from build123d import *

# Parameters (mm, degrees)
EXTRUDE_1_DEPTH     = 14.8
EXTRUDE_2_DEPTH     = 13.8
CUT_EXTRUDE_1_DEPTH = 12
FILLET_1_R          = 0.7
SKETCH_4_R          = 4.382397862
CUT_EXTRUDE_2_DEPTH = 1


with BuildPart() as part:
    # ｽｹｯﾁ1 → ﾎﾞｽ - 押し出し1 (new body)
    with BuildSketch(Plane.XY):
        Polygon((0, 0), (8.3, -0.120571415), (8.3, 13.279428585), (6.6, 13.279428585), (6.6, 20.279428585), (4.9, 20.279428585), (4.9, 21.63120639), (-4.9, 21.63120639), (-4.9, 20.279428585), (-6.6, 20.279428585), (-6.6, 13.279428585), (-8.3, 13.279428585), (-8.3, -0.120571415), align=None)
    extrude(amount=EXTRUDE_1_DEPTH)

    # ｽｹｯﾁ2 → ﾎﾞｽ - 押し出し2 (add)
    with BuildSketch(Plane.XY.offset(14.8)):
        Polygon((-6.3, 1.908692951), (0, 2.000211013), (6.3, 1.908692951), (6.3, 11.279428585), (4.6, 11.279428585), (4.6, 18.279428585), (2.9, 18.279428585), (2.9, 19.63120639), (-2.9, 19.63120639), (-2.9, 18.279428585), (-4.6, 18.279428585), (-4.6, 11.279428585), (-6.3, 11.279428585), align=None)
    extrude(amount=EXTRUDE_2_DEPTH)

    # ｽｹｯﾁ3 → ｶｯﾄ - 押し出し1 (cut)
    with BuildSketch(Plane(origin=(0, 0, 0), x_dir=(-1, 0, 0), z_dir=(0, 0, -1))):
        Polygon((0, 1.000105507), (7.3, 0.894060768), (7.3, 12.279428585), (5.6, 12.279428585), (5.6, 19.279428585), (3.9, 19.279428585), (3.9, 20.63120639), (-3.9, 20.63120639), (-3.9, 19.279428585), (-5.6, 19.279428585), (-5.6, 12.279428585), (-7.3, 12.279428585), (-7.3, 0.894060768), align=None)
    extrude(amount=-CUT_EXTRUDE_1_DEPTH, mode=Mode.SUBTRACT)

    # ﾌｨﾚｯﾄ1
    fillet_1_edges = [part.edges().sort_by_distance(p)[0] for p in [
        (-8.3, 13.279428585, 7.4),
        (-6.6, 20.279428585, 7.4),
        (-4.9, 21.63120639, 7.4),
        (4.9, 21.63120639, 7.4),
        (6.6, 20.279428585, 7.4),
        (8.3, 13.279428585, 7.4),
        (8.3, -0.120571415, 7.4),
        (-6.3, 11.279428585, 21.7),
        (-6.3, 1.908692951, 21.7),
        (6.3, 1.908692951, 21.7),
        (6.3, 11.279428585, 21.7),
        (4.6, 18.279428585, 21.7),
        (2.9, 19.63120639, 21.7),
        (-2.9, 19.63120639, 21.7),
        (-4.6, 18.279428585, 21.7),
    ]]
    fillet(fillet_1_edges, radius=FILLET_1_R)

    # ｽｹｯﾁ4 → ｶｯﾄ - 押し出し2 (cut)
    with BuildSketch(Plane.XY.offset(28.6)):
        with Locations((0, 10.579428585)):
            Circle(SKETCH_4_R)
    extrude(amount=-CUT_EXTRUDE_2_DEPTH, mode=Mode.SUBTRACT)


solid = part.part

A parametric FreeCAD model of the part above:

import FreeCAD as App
import Part
import Sketcher
Q = App.Units.Quantity


def edges_at(feature, points):
    """Names of the edges that pass closest to the given points."""
    edges = feature.Shape.Edges
    near = lambda p: min(range(len(edges)), key=lambda i: edges[i].distToShape(Part.Vertex(*p))[0])
    return sorted({f"Edge{near(p) + 1}" for p in points})

doc = App.newDocument("Part")
params = doc.addObject("Spreadsheet::Sheet", "Params")
for row, (alias, value) in enumerate([
    ("sketch1_height", "7 mm"),
    ("sketch1_width", "1.7 mm"),
    ("sketch1_width2", "9.8 mm"),
    ("sketch1_height2", "13.4 mm"),
    ("pad1_length", "14.8 mm"),
    ("sketch2_height", "7 mm"),
    ("sketch2_width", "1.7 mm"),
    ("sketch2_width2", "5.8 mm"),
    ("pad2_length", "13.8 mm"),
    ("sketch3_height", "7 mm"),
    ("sketch3_width", "1.7 mm"),
    ("sketch3_width2", "7.8 mm"),
    ("pocket1_length", "12 mm"),
    ("fillet_radius", "0.7 mm"),
    ("pocket2_length", "1 mm"),
], start=1):
    params.set(f"A{row}", alias)
    params.set(f"B{row}", "=" + value)
    params.setAlias(f"B{row}", alias)

body = doc.addObject("PartDesign::Body", "Body")

# Sketch on XY plane
sketch1 = body.newObject("Sketcher::SketchObject", "Sketch")
sketch1.AttachmentSupport = (doc.getObject("XY_Plane"), [""])
sketch1.MapMode = "FlatFace"
sketch1.addGeometry([
    Part.LineSegment(App.Vector(0, 0, 0), App.Vector(8.3, -0.1, 0)),  # 0
    Part.LineSegment(App.Vector(8.3, -0.1, 0), App.Vector(8.3, 13.3, 0)),  # 1
    Part.LineSegment(App.Vector(8.3, 13.3, 0), App.Vector(6.6, 13.3, 0)),  # 2
    Part.LineSegment(App.Vector(6.6, 13.3, 0), App.Vector(6.6, 20.3, 0)),  # 3
    Part.LineSegment(App.Vector(6.6, 20.3, 0), App.Vector(4.9, 20.3, 0)),  # 4
    Part.LineSegment(App.Vector(4.9, 20.3, 0), App.Vector(4.9, 21.6, 0)),  # 5
    Part.LineSegment(App.Vector(4.9, 21.6, 0), App.Vector(-4.9, 21.6, 0)),  # 6
    Part.LineSegment(App.Vector(-4.9, 21.6, 0), App.Vector(-4.9, 20.3, 0)),  # 7
    Part.LineSegment(App.Vector(-4.9, 20.3, 0), App.Vector(-6.6, 20.3, 0)),  # 8
    Part.LineSegment(App.Vector(-6.6, 20.3, 0), App.Vector(-6.6, 13.3, 0)),  # 9
    Part.LineSegment(App.Vector(-6.6, 13.3, 0), App.Vector(-8.3, 13.3, 0)),  # 10
    Part.LineSegment(App.Vector(-8.3, 13.3, 0), App.Vector(-8.3, -0.1, 0)),  # 11
    Part.LineSegment(App.Vector(-8.3, -0.1, 0), App.Vector(0, 0, 0)),  # 12
], False)
sketch1.addConstraint([
    Sketcher.Constraint("Coincident", 0, 2, 1, 1),
    Sketcher.Constraint("Coincident", 1, 2, 2, 1),
    Sketcher.Constraint("Coincident", 2, 2, 3, 1),
    Sketcher.Constraint("Coincident", 3, 2, 4, 1),
    Sketcher.Constraint("Coincident", 4, 2, 5, 1),
    Sketcher.Constraint("Coincident", 5, 2, 6, 1),
    Sketcher.Constraint("Coincident", 6, 2, 7, 1),
    Sketcher.Constraint("Coincident", 7, 2, 8, 1),
    Sketcher.Constraint("Coincident", 8, 2, 9, 1),
    Sketcher.Constraint("Coincident", 9, 2, 10, 1),
    Sketcher.Constraint("Coincident", 10, 2, 11, 1),
    Sketcher.Constraint("Coincident", 11, 2, 12, 1),
    Sketcher.Constraint("Coincident", 12, 2, 0, 1),
    Sketcher.Constraint("Vertical", 1),
    Sketcher.Constraint("Horizontal", 2),
    Sketcher.Constraint("Vertical", 3),
    Sketcher.Constraint("Horizontal", 4),
    Sketcher.Constraint("Vertical", 5),
    Sketcher.Constraint("Horizontal", 6),
    Sketcher.Constraint("Vertical", 7),
    Sketcher.Constraint("Horizontal", 8),
    Sketcher.Constraint("Vertical", 9),
    Sketcher.Constraint("Horizontal", 10),
    Sketcher.Constraint("Vertical", 11),
    Sketcher.Constraint("Coincident", 12, 2, -1, 1),
    Sketcher.Constraint("Symmetric", 4, 2, 7, 2, -2),
    Sketcher.Constraint("Symmetric", 2, 2, 9, 2, -2),
    Sketcher.Constraint("Symmetric", 0, 2, 11, 2, -2),
    Sketcher.Constraint("Equal", 2, 4),
    Sketcher.Constraint("DistanceY", 3, 1, 3, 2, Q("7 mm")),
    Sketcher.Constraint("DistanceX", 2, 2, 2, 1, Q("1.7 mm")),
    Sketcher.Constraint("DistanceX", 6, 2, 6, 1, Q("9.8 mm")),
    Sketcher.Constraint("DistanceY", 1, 1, 1, 2, Q("13.4 mm")),
    Sketcher.Constraint("DistanceY", 5, 1, 5, 2, Q("1.351778 mm")),
    Sketcher.Constraint("DistanceY", 0, 2, -1, 1, Q("0.120571 mm")),
])
sketch1.setExpression("Constraints[29]", "Params.sketch1_height")
sketch1.setExpression("Constraints[30]", "Params.sketch1_width")
sketch1.setExpression("Constraints[31]", "Params.sketch1_width2")
sketch1.setExpression("Constraints[32]", "Params.sketch1_height2")
pad1 = body.newObject("PartDesign::Pad", "Pad")
pad1.Profile = sketch1
pad1.setExpression("Length", "Params.pad1_length")

# Sketch on XY plane
sketch2 = body.newObject("Sketcher::SketchObject", "Sketch001")
sketch2.AttachmentSupport = (doc.getObject("XY_Plane"), [""])
sketch2.MapMode = "FlatFace"
sketch2.AttachmentOffset = App.Placement(App.Vector(0, 0, 14.8), App.Rotation())
sketch2.addGeometry([
    Part.LineSegment(App.Vector(-6.3, 1.9, 0), App.Vector(0, 2, 0)),  # 0
    Part.LineSegment(App.Vector(0, 2, 0), App.Vector(6.3, 1.9, 0)),  # 1
    Part.LineSegment(App.Vector(6.3, 1.9, 0), App.Vector(6.3, 11.3, 0)),  # 2
    Part.LineSegment(App.Vector(6.3, 11.3, 0), App.Vector(4.6, 11.3, 0)),  # 3
    Part.LineSegment(App.Vector(4.6, 11.3, 0), App.Vector(4.6, 18.3, 0)),  # 4
    Part.LineSegment(App.Vector(4.6, 18.3, 0), App.Vector(2.9, 18.3, 0)),  # 5
    Part.LineSegment(App.Vector(2.9, 18.3, 0), App.Vector(2.9, 19.6, 0)),  # 6
    Part.LineSegment(App.Vector(2.9, 19.6, 0), App.Vector(-2.9, 19.6, 0)),  # 7
    Part.LineSegment(App.Vector(-2.9, 19.6, 0), App.Vector(-2.9, 18.3, 0)),  # 8
    Part.LineSegment(App.Vector(-2.9, 18.3, 0), App.Vector(-4.6, 18.3, 0)),  # 9
    Part.LineSegment(App.Vector(-4.6, 18.3, 0), App.Vector(-4.6, 11.3, 0)),  # 10
    Part.LineSegment(App.Vector(-4.6, 11.3, 0), App.Vector(-6.3, 11.3, 0)),  # 11
    Part.LineSegment(App.Vector(-6.3, 11.3, 0), App.Vector(-6.3, 1.9, 0)),  # 12
], False)
sketch2.addConstraint([
    Sketcher.Constraint("Coincident", 0, 2, 1, 1),
    Sketcher.Constraint("Coincident", 1, 2, 2, 1),
    Sketcher.Constraint("Coincident", 2, 2, 3, 1),
    Sketcher.Constraint("Coincident", 3, 2, 4, 1),
    Sketcher.Constraint("Coincident", 4, 2, 5, 1),
    Sketcher.Constraint("Coincident", 5, 2, 6, 1),
    Sketcher.Constraint("Coincident", 6, 2, 7, 1),
    Sketcher.Constraint("Coincident", 7, 2, 8, 1),
    Sketcher.Constraint("Coincident", 8, 2, 9, 1),
    Sketcher.Constraint("Coincident", 9, 2, 10, 1),
    Sketcher.Constraint("Coincident", 10, 2, 11, 1),
    Sketcher.Constraint("Coincident", 11, 2, 12, 1),
    Sketcher.Constraint("Coincident", 12, 2, 0, 1),
    Sketcher.Constraint("Vertical", 2),
    Sketcher.Constraint("Horizontal", 3),
    Sketcher.Constraint("Vertical", 4),
    Sketcher.Constraint("Horizontal", 5),
    Sketcher.Constraint("Vertical", 6),
    Sketcher.Constraint("Horizontal", 7),
    Sketcher.Constraint("Vertical", 8),
    Sketcher.Constraint("Horizontal", 9),
    Sketcher.Constraint("Vertical", 10),
    Sketcher.Constraint("Horizontal", 11),
    Sketcher.Constraint("Vertical", 12),
    Sketcher.Constraint("Symmetric", 5, 2, 8, 2, -2),
    Sketcher.Constraint("Symmetric", 3, 2, 10, 2, -2),
    Sketcher.Constraint("Symmetric", 1, 2, 12, 2, -2),
    Sketcher.Constraint("PointOnObject", 0, 2, -2),
    Sketcher.Constraint("Equal", 3, 5),
    Sketcher.Constraint("DistanceY", 4, 1, 4, 2, Q("7 mm")),
    Sketcher.Constraint("DistanceX", 3, 2, 3, 1, Q("1.7 mm")),
    Sketcher.Constraint("DistanceX", 7, 2, 7, 1, Q("5.8 mm")),
    Sketcher.Constraint("DistanceY", 2, 1, 2, 2, Q("9.370736 mm")),
    Sketcher.Constraint("DistanceY", 6, 1, 6, 2, Q("1.351778 mm")),
    Sketcher.Constraint("DistanceY", -1, 1, 0, 2, Q("2.000211 mm")),
    Sketcher.Constraint("DistanceY", -1, 1, 2, 2, Q("11.279429 mm")),
])
sketch2.setExpression("Constraints[29]", "Params.sketch2_height")
sketch2.setExpression("Constraints[30]", "Params.sketch2_width")
sketch2.setExpression("Constraints[31]", "Params.sketch2_width2")
pad2 = body.newObject("PartDesign::Pad", "Pad001")
pad2.Profile = sketch2
pad2.setExpression("Length", "Params.pad2_length")

# Sketch on XY plane
sketch3 = body.newObject("Sketcher::SketchObject", "Sketch002")
sketch3.AttachmentSupport = (doc.getObject("XY_Plane"), [""])
sketch3.MapMode = "FlatFace"
sketch3.addGeometry([
    Part.LineSegment(App.Vector(0, 1, 0), App.Vector(-7.3, 0.9, 0)),  # 0
    Part.LineSegment(App.Vector(-7.3, 0.9, 0), App.Vector(-7.3, 12.3, 0)),  # 1
    Part.LineSegment(App.Vector(-7.3, 12.3, 0), App.Vector(-5.6, 12.3, 0)),  # 2
    Part.LineSegment(App.Vector(-5.6, 12.3, 0), App.Vector(-5.6, 19.3, 0)),  # 3
    Part.LineSegment(App.Vector(-5.6, 19.3, 0), App.Vector(-3.9, 19.3, 0)),  # 4
    Part.LineSegment(App.Vector(-3.9, 19.3, 0), App.Vector(-3.9, 20.6, 0)),  # 5
    Part.LineSegment(App.Vector(-3.9, 20.6, 0), App.Vector(3.9, 20.6, 0)),  # 6
    Part.LineSegment(App.Vector(3.9, 20.6, 0), App.Vector(3.9, 19.3, 0)),  # 7
    Part.LineSegment(App.Vector(3.9, 19.3, 0), App.Vector(5.6, 19.3, 0)),  # 8
    Part.LineSegment(App.Vector(5.6, 19.3, 0), App.Vector(5.6, 12.3, 0)),  # 9
    Part.LineSegment(App.Vector(5.6, 12.3, 0), App.Vector(7.3, 12.3, 0)),  # 10
    Part.LineSegment(App.Vector(7.3, 12.3, 0), App.Vector(7.3, 0.9, 0)),  # 11
    Part.LineSegment(App.Vector(7.3, 0.9, 0), App.Vector(0, 1, 0)),  # 12
], False)
sketch3.addConstraint([
    Sketcher.Constraint("Coincident", 0, 2, 1, 1),
    Sketcher.Constraint("Coincident", 1, 2, 2, 1),
    Sketcher.Constraint("Coincident", 2, 2, 3, 1),
    Sketcher.Constraint("Coincident", 3, 2, 4, 1),
    Sketcher.Constraint("Coincident", 4, 2, 5, 1),
    Sketcher.Constraint("Coincident", 5, 2, 6, 1),
    Sketcher.Constraint("Coincident", 6, 2, 7, 1),
    Sketcher.Constraint("Coincident", 7, 2, 8, 1),
    Sketcher.Constraint("Coincident", 8, 2, 9, 1),
    Sketcher.Constraint("Coincident", 9, 2, 10, 1),
    Sketcher.Constraint("Coincident", 10, 2, 11, 1),
    Sketcher.Constraint("Coincident", 11, 2, 12, 1),
    Sketcher.Constraint("Coincident", 12, 2, 0, 1),
    Sketcher.Constraint("Vertical", 1),
    Sketcher.Constraint("Horizontal", 2),
    Sketcher.Constraint("Vertical", 3),
    Sketcher.Constraint("Horizontal", 4),
    Sketcher.Constraint("Vertical", 5),
    Sketcher.Constraint("Horizontal", 6),
    Sketcher.Constraint("Vertical", 7),
    Sketcher.Constraint("Horizontal", 8),
    Sketcher.Constraint("Vertical", 9),
    Sketcher.Constraint("Horizontal", 10),
    Sketcher.Constraint("Vertical", 11),
    Sketcher.Constraint("Symmetric", 4, 2, 7, 2, -2),
    Sketcher.Constraint("Symmetric", 2, 2, 9, 2, -2),
    Sketcher.Constraint("Symmetric", 0, 2, 11, 2, -2),
    Sketcher.Constraint("PointOnObject", 12, 2, -2),
    Sketcher.Constraint("Equal", 2, 4),
    Sketcher.Constraint("DistanceY", 3, 1, 3, 2, Q("7 mm")),
    Sketcher.Constraint("DistanceX", 2, 1, 2, 2, Q("1.7 mm")),
    Sketcher.Constraint("DistanceX", 6, 1, 6, 2, Q("7.8 mm")),
    Sketcher.Constraint("Distance", 0, Q("7.30077 mm")),
    Sketcher.Constraint("DistanceY", 1, 1, 1, 2, Q("11.385368 mm")),
    Sketcher.Constraint("DistanceY", 5, 1, 5, 2, Q("1.351778 mm")),
    Sketcher.Constraint("DistanceY", -1, 1, 0, 2, Q("0.894061 mm")),
])
sketch3.setExpression("Constraints[29]", "Params.sketch3_height")
sketch3.setExpression("Constraints[30]", "Params.sketch3_width")
sketch3.setExpression("Constraints[31]", "Params.sketch3_width2")
pocket1 = body.newObject("PartDesign::Pocket", "Pocket")
pocket1.Profile = sketch3
pocket1.setExpression("Length", "Params.pocket1_length")
pocket1.Reversed = True
doc.recompute()

fillet = body.newObject("PartDesign::Fillet", "Fillet")
fillet.Base = (pocket1, edges_at(pocket1, [
    (-8.3, 13.279, 7.4),
    (-6.6, 20.279, 7.4),
    (-4.9, 21.631, 7.4),
    (4.9, 21.631, 7.4),
    (6.6, 20.279, 7.4),
    (8.3, 13.279, 7.4),
    (8.3, -0.121, 7.4),
    (-6.3, 11.279, 21.7),
    (-6.3, 1.909, 21.7),
    (6.3, 1.909, 21.7),
    (6.3, 11.279, 21.7),
    (4.6, 18.279, 21.7),
    (2.9, 19.631, 21.7),
    (-2.9, 19.631, 21.7),
    (-4.6, 18.279, 21.7),
]))
fillet.setExpression("Radius", "Params.fillet_radius")

# Sketch on XY plane
sketch4 = body.newObject("Sketcher::SketchObject", "Sketch003")
sketch4.AttachmentSupport = (doc.getObject("XY_Plane"), [""])
sketch4.MapMode = "FlatFace"
sketch4.AttachmentOffset = App.Placement(App.Vector(0, 0, 28.6), App.Rotation())
sketch4.addGeometry(Part.Circle(App.Vector(0, 10.6, 0), App.Vector(0, 0, 1), 4.4), False)
sketch4.addConstraint([
    Sketcher.Constraint("PointOnObject", 0, 3, -2),
    Sketcher.Constraint("Diameter", 0, Q("8.764796 mm")),
    Sketcher.Constraint("DistanceY", -1, 1, 0, 3, Q("10.579429 mm")),
])
pocket2 = body.newObject("PartDesign::Pocket", "Pocket001")
pocket2.Profile = sketch4
pocket2.setExpression("Length", "Params.pocket2_length")

doc.recompute()
